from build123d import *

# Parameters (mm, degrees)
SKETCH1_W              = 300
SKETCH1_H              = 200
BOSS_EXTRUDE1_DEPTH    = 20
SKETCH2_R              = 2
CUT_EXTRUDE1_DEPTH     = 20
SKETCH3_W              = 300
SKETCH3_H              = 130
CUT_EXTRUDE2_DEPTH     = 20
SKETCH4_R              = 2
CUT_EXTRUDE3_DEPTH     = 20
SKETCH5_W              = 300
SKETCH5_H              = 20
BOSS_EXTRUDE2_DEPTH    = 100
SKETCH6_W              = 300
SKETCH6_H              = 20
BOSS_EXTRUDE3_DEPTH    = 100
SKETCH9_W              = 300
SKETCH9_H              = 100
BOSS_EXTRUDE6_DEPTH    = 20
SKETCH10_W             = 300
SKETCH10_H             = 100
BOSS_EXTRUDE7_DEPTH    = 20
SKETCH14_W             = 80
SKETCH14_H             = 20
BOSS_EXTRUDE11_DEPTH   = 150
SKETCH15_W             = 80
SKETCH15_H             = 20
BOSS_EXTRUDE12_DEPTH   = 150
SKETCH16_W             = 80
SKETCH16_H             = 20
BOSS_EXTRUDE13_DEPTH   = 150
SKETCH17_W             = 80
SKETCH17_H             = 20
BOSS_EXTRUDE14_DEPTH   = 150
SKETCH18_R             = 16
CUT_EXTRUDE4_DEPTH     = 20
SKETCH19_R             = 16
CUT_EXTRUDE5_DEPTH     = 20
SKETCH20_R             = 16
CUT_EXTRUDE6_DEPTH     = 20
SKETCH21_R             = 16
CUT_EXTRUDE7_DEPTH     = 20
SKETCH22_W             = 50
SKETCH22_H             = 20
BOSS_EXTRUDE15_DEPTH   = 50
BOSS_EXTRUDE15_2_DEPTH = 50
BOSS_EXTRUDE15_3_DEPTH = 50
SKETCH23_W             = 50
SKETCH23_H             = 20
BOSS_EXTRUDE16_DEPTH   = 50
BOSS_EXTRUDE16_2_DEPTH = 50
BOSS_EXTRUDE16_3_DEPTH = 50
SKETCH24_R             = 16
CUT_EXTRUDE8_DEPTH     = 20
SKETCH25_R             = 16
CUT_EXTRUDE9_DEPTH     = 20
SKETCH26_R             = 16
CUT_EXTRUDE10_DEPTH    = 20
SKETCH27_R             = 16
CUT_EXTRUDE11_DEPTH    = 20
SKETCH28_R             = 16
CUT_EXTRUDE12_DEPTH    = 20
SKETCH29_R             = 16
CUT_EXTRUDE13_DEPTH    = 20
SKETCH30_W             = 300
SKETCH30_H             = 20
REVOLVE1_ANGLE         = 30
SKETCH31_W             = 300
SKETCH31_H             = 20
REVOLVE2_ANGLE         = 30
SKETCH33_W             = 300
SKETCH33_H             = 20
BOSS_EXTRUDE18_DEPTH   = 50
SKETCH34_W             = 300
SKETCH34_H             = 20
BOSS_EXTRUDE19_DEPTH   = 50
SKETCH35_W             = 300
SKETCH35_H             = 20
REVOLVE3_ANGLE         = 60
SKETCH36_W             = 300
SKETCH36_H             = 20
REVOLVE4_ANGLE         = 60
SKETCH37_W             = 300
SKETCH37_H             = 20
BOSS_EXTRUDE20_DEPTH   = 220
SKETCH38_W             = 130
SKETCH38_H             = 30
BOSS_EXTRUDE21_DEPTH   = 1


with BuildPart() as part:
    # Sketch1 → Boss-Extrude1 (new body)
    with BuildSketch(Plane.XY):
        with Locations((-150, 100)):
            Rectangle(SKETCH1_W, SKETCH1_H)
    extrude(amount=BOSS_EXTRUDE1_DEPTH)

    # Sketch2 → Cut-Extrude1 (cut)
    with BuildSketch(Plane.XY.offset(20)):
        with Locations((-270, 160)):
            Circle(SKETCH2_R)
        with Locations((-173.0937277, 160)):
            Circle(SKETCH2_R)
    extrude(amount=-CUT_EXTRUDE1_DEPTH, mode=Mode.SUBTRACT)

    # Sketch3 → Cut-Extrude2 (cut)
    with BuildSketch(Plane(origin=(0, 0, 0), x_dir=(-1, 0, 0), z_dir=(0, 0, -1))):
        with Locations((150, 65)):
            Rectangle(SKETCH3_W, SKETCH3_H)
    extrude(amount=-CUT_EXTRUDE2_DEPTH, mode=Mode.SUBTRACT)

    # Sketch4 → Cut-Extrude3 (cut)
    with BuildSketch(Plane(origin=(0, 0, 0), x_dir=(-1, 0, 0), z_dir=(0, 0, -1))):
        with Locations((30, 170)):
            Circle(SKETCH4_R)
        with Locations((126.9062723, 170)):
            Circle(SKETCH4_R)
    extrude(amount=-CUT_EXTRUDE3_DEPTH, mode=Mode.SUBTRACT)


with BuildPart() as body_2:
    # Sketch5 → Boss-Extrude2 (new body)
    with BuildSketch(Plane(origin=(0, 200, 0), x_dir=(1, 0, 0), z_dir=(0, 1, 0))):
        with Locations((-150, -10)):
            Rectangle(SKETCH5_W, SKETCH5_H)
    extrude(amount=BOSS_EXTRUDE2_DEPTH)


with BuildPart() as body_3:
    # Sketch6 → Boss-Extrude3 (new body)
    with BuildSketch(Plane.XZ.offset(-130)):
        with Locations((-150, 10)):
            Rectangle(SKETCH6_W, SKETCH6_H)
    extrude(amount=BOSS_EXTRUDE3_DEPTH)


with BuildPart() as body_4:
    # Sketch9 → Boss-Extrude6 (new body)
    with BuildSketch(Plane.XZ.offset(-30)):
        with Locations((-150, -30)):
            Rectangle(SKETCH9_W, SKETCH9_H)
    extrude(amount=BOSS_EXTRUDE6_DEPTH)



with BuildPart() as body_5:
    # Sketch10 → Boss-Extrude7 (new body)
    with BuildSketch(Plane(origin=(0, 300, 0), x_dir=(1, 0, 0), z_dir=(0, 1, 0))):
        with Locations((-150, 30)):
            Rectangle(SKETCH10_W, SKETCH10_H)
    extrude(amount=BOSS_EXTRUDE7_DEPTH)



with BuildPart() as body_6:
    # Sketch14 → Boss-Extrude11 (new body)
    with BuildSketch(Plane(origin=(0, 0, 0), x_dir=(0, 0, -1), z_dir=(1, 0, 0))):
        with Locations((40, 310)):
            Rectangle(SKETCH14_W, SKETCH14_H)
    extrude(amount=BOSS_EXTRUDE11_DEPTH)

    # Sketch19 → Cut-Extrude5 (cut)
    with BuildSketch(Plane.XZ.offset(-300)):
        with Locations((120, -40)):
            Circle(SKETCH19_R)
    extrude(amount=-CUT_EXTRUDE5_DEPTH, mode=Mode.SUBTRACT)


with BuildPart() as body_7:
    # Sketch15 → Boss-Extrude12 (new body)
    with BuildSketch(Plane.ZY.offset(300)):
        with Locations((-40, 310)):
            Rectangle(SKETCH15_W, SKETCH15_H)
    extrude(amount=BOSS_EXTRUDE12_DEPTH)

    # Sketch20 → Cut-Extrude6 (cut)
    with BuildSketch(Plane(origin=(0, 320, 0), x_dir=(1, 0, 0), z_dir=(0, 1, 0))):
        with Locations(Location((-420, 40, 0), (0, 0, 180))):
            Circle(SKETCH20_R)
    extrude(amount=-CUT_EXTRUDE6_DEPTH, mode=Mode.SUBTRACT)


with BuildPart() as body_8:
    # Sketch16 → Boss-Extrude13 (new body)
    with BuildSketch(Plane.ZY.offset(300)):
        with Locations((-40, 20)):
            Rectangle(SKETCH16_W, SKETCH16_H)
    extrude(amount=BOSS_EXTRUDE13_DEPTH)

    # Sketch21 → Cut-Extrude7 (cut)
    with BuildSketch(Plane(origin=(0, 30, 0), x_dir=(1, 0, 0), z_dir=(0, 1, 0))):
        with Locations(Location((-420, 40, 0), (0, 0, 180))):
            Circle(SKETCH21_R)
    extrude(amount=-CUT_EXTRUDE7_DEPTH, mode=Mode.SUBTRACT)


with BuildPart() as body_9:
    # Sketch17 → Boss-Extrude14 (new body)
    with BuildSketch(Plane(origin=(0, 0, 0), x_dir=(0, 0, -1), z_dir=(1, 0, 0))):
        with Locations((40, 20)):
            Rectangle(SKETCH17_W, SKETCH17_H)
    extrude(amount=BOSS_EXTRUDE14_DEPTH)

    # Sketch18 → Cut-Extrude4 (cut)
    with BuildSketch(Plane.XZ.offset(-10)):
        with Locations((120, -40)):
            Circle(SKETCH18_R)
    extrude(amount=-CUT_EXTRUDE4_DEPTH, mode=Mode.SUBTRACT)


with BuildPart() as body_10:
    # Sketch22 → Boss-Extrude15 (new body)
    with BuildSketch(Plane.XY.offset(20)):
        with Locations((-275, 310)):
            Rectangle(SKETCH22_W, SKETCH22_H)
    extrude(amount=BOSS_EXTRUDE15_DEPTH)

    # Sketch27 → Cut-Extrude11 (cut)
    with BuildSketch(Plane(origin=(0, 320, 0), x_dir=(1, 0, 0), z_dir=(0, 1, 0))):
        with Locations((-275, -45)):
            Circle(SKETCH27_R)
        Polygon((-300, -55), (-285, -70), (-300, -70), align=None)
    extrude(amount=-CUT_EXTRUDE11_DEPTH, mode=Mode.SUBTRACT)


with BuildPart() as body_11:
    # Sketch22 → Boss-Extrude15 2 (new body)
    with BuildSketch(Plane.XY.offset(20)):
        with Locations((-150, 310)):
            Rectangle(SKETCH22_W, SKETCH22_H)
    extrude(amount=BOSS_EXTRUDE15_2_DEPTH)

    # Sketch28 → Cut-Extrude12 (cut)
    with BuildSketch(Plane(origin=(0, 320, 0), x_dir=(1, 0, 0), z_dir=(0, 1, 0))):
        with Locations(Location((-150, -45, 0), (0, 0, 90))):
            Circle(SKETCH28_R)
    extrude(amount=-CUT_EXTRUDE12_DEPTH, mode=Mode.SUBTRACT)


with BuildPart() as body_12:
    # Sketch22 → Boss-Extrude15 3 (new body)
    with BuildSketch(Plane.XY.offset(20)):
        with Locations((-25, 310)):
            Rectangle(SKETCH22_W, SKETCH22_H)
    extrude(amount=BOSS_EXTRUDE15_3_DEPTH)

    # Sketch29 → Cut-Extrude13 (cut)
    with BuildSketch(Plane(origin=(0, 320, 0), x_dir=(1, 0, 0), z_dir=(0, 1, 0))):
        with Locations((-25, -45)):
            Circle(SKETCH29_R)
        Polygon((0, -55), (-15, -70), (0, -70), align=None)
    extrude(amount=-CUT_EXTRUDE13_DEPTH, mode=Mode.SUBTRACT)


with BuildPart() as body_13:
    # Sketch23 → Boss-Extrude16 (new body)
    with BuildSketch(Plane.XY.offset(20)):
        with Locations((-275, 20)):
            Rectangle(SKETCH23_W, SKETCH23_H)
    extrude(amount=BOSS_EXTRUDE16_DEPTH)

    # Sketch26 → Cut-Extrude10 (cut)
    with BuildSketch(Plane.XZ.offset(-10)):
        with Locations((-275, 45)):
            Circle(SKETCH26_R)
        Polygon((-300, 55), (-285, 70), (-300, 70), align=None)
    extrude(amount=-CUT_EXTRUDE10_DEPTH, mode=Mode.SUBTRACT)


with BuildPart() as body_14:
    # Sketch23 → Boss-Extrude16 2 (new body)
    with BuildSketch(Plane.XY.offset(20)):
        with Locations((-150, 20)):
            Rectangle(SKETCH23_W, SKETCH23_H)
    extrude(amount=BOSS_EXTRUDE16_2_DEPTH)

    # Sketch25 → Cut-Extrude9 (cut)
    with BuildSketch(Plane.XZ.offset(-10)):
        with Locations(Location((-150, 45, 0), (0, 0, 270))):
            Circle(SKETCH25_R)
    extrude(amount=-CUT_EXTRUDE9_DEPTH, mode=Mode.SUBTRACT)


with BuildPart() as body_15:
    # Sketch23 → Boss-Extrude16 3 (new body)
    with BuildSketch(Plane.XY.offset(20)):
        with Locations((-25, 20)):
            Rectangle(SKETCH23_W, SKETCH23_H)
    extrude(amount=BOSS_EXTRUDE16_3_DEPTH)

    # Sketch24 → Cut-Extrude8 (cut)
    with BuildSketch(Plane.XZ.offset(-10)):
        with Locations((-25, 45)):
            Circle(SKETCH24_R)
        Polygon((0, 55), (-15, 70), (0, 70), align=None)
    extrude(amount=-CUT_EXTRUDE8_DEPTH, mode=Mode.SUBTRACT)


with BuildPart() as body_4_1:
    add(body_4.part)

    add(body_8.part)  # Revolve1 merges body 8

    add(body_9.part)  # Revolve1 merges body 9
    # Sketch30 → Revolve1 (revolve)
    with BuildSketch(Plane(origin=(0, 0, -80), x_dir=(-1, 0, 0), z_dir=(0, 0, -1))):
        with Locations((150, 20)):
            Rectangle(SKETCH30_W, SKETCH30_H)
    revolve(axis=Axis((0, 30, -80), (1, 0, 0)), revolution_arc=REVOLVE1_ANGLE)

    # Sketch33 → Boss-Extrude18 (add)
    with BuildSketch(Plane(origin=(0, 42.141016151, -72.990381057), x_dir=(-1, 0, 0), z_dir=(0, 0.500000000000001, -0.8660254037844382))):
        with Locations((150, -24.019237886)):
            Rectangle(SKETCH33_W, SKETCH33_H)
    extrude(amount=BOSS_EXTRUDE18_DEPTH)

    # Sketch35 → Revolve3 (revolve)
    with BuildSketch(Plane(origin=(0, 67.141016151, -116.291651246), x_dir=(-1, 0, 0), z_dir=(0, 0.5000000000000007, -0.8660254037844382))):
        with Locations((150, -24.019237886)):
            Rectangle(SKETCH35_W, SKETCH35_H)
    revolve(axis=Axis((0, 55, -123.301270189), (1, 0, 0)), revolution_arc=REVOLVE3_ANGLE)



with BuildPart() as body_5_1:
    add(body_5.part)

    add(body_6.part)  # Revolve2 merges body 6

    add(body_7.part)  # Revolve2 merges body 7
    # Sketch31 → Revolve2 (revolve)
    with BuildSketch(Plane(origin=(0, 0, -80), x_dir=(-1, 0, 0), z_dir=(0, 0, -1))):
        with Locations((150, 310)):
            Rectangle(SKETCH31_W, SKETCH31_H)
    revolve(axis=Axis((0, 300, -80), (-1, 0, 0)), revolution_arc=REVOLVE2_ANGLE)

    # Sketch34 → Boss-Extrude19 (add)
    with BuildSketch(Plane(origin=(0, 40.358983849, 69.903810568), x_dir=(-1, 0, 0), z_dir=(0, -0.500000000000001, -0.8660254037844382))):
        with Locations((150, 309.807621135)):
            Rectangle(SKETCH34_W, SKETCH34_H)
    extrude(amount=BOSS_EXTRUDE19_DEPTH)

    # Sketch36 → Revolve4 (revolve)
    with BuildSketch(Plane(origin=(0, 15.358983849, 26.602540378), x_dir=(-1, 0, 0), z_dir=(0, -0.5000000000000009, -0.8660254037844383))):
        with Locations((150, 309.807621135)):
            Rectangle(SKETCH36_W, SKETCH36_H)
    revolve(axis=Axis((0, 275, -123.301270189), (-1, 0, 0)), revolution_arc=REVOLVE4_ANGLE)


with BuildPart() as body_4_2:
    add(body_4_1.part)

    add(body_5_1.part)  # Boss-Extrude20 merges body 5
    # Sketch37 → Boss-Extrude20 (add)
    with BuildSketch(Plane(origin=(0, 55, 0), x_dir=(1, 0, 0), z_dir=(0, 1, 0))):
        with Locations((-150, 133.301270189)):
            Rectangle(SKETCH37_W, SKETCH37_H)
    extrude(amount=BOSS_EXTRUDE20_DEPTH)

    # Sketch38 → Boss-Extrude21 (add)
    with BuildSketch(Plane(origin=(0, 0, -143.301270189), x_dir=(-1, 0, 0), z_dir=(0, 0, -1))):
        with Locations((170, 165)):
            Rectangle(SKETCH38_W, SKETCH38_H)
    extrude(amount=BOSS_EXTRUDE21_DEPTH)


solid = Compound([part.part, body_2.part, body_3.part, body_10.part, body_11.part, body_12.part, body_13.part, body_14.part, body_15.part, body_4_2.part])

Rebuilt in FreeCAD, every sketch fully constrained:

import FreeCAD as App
import Part
import Sketcher

V = App.Vector


def add_polygon(sketch, points):
    """Adds a closed chain of lines whose ends are joined by coincident constraints."""
    first, n = sketch.GeometryCount, len(points)
    for a, b in zip(points, points[1:] + points[:1]):
        sketch.addGeometry(Part.LineSegment(App.Vector(*a, 0), App.Vector(*b, 0)), False)
    for i in range(n):
        sketch.addConstraint(Sketcher.Constraint("Coincident", first + i, 2, first + (i + 1) % n, 1))

doc = App.newDocument("Part")
body = doc.addObject("PartDesign::Body", "Body")

sketch1 = body.newObject("Sketcher::SketchObject", "Sketch")
sketch1.AttachmentSupport = (doc.getObject("XY_Plane"), [""])
sketch1.MapMode = "FlatFace"
add_polygon(sketch1, [(-300, 200), (-300, 0), (0, 0), (0, 200)])
sketch1.addConstraint(Sketcher.Constraint("Vertical", 0))
sketch1.addConstraint(Sketcher.Constraint("Horizontal", 1))
sketch1.addConstraint(Sketcher.Constraint("Vertical", 2))
sketch1.addConstraint(Sketcher.Constraint("Horizontal", 3))
sketch1.addConstraint(Sketcher.Constraint("Coincident", 1, 2, -1, 1))
sketch1.addConstraint(Sketcher.Constraint("DistanceX", 1, 1, 1, 2, 300.0))
sketch1.addConstraint(Sketcher.Constraint("DistanceY", 0, 2, 0, 1, 200.0))
pad1 = body.newObject("PartDesign::Pad", "Pad")
pad1.Profile = sketch1
pad1.Length = 20

sketch2 = body.newObject("Sketcher::SketchObject", "Sketch001")
sketch2.AttachmentSupport = (doc.getObject("XY_Plane"), [""])
sketch2.MapMode = "FlatFace"
sketch2.AttachmentOffset = App.Placement(V(0, 0, 20), App.Rotation())
sketch2.addGeometry(Part.Circle(V(-270, 160, 0), V(0, 0, 1), 2), False)
sketch2.addGeometry(Part.Circle(V(-173.1, 160, 0), V(0, 0, 1), 2), False)
sketch2.addConstraint(Sketcher.Constraint("Equal", 0, 1))
sketch2.addConstraint(Sketcher.Constraint("Horizontal", 0, 3, 1, 3))
sketch2.addConstraint(Sketcher.Constraint("Diameter", 0, 4.0))
sketch2.addConstraint(Sketcher.Constraint("DistanceX", 0, 3, -1, 1, 270.0))
sketch2.addConstraint(Sketcher.Constraint("DistanceY", -1, 1, 0, 3, 160.0))
sketch2.addConstraint(Sketcher.Constraint("DistanceX", 1, 3, -1, 1, 173.093728))
pocket1 = body.newObject("PartDesign::Pocket", "Pocket")
pocket1.Profile = sketch2
pocket1.Length = 20

sketch3 = body.newObject("Sketcher::SketchObject", "Sketch002")
sketch3.AttachmentSupport = (doc.getObject("XY_Plane"), [""])
sketch3.MapMode = "FlatFace"
add_polygon(sketch3, [(0, 130), (0, 0), (-300, 0), (-300, 130)])
sketch3.addConstraint(Sketcher.Constraint("Vertical", 0))
sketch3.addConstraint(Sketcher.Constraint("Horizontal", 1))
sketch3.addConstraint(Sketcher.Constraint("Vertical", 2))
sketch3.addConstraint(Sketcher.Constraint("Horizontal", 3))
sketch3.addConstraint(Sketcher.Constraint("Coincident", 0, 2, -1, 1))
sketch3.addConstraint(Sketcher.Constraint("DistanceX", 1, 2, 1, 1, 300.0))
sketch3.addConstraint(Sketcher.Constraint("DistanceY", 0, 2, 0, 1, 130.0))
pocket2 = body.newObject("PartDesign::Pocket", "Pocket001")
pocket2.Profile = sketch3
pocket2.Length = 20
pocket2.Reversed = True

sketch4 = body.newObject("Sketcher::SketchObject", "Sketch003")
sketch4.AttachmentSupport = (doc.getObject("XY_Plane"), [""])
sketch4.MapMode = "FlatFace"
sketch4.addGeometry(Part.Circle(V(-30, 170, 0), V(0, 0, 1), 2), False)
sketch4.addGeometry(Part.Circle(V(-126.9, 170, 0), V(0, 0, 1), 2), False)
sketch4.addConstraint(Sketcher.Constraint("Equal", 0, 1))
sketch4.addConstraint(Sketcher.Constraint("Horizontal", 0, 3, 1, 3))
sketch4.addConstraint(Sketcher.Constraint("Diameter", 0, 4.0))
sketch4.addConstraint(Sketcher.Constraint("DistanceX", 0, 3, -1, 1, 30.0))
sketch4.addConstraint(Sketcher.Constraint("DistanceY", -1, 1, 0, 3, 170.0))
sketch4.addConstraint(Sketcher.Constraint("DistanceX", 1, 3, -1, 1, 126.906272))
pocket3 = body.newObject("PartDesign::Pocket", "Pocket002")
pocket3.Profile = sketch4
pocket3.Length = 20
pocket3.Reversed = True
body2 = doc.addObject("PartDesign::Body", "Body001")

sketch5 = body2.newObject("Sketcher::SketchObject", "Sketch004")
sketch5.AttachmentSupport = (doc.getObject("XZ_Plane001"), [""])
sketch5.MapMode = "FlatFace"
sketch5.AttachmentOffset = App.Placement(V(0, 0, -200), App.Rotation())
add_polygon(sketch5, [(-300, 0), (-300, 20), (0, 20), (0, 0)])
sketch5.addConstraint(Sketcher.Constraint("Vertical", 0))
sketch5.addConstraint(Sketcher.Constraint("Horizontal", 1))
sketch5.addConstraint(Sketcher.Constraint("Vertical", 2))
sketch5.addConstraint(Sketcher.Constraint("Horizontal", 3))
sketch5.addConstraint(Sketcher.Constraint("Coincident", 2, 2, -1, 1))
sketch5.addConstraint(Sketcher.Constraint("DistanceX", 1, 1, 1, 2, 300.0))
sketch5.addConstraint(Sketcher.Constraint("DistanceY", 0, 1, 0, 2, 20.0))
pad2 = body2.newObject("PartDesign::Pad", "Pad001")
pad2.Profile = sketch5
pad2.Length = 100
pad2.Reversed = True
body3 = doc.addObject("PartDesign::Body", "Body002")

sketch6 = body3.newObject("Sketcher::SketchObject", "Sketch005")
sketch6.AttachmentSupport = (doc.getObject("XZ_Plane002"), [""])
sketch6.MapMode = "FlatFace"
sketch6.AttachmentOffset = App.Placement(V(0, 0, -130), App.Rotation())
add_polygon(sketch6, [(-300, 20), (-300, 0), (0, 0), (0, 20)])
sketch6.addConstraint(Sketcher.Constraint("Vertical", 0))
sketch6.addConstraint(Sketcher.Constraint("Horizontal", 1))
sketch6.addConstraint(Sketcher.Constraint("Vertical", 2))
sketch6.addConstraint(Sketcher.Constraint("Horizontal", 3))
sketch6.addConstraint(Sketcher.Constraint("Coincident", 1, 2, -1, 1))
sketch6.addConstraint(Sketcher.Constraint("DistanceX", 1, 1, 1, 2, 300.0))
sketch6.addConstraint(Sketcher.Constraint("DistanceY", 0, 2, 0, 1, 20.0))
pad3 = body3.newObject("PartDesign::Pad", "Pad002")
pad3.Profile = sketch6
pad3.Length = 100
body4 = doc.addObject("PartDesign::Body", "Body003")

sketch7 = body4.newObject("Sketcher::SketchObject", "Sketch006")
sketch7.AttachmentSupport = (doc.getObject("XZ_Plane003"), [""])
sketch7.MapMode = "FlatFace"
sketch7.AttachmentOffset = App.Placement(V(0, 0, -30), App.Rotation())
add_polygon(sketch7, [(-300, 20), (-300, -80), (0, -80), (0, 20)])
sketch7.addConstraint(Sketcher.Constraint("Vertical", 0))
sketch7.addConstraint(Sketcher.Constraint("Horizontal", 1))
sketch7.addConstraint(Sketcher.Constraint("Vertical", 2))
sketch7.addConstraint(Sketcher.Constraint("Horizontal", 3))
sketch7.addConstraint(Sketcher.Constraint("PointOnObject", 1, 2, -2))
sketch7.addConstraint(Sketcher.Constraint("DistanceX", 1, 1, 1, 2, 300.0))
sketch7.addConstraint(Sketcher.Constraint("DistanceY", 0, 2, 0, 1, 100.0))
sketch7.addConstraint(Sketcher.Constraint("DistanceY", 0, 2, -1, 1, 80.0))
pad4 = body4.newObject("PartDesign::Pad", "Pad003")
pad4.Profile = sketch7
pad4.Length = 20
body5 = doc.addObject("PartDesign::Body", "Body004")

sketch8 = body5.newObject("Sketcher::SketchObject", "Sketch007")
sketch8.AttachmentSupport = (doc.getObject("XZ_Plane004"), [""])
sketch8.MapMode = "FlatFace"
sketch8.AttachmentOffset = App.Placement(V(0, 0, -300), App.Rotation())
add_polygon(sketch8, [(-300, -80), (-300, 20), (0, 20), (0, -80)])
sketch8.addConstraint(Sketcher.Constraint("Vertical", 0))
sketch8.addConstraint(Sketcher.Constraint("Horizontal", 1))
sketch8.addConstraint(Sketcher.Constraint("Vertical", 2))
sketch8.addConstraint(Sketcher.Constraint("Horizontal", 3))
sketch8.addConstraint(Sketcher.Constraint("PointOnObject", 1, 2, -2))
sketch8.addConstraint(Sketcher.Constraint("DistanceX", 1, 1, 1, 2, 300.0))
sketch8.addConstraint(Sketcher.Constraint("DistanceY", 0, 1, 0, 2, 100.0))
sketch8.addConstraint(Sketcher.Constraint("DistanceY", -1, 1, 0, 2, 20.0))
pad5 = body5.newObject("PartDesign::Pad", "Pad004")
pad5.Profile = sketch8
pad5.Length = 20
pad5.Reversed = True
body6 = doc.addObject("PartDesign::Body", "Body005")

sketch9 = body6.newObject("Sketcher::SketchObject", "Sketch008")
sketch9.AttachmentSupport = (doc.getObject("YZ_Plane005"), [""])
sketch9.MapMode = "FlatFace"
add_polygon(sketch9, [(320, 0), (300, 0), (300, -80), (320, -80)])
sketch9.addConstraint(Sketcher.Constraint("Horizontal", 0))
sketch9.addConstraint(Sketcher.Constraint("Vertical", 1))
sketch9.addConstraint(Sketcher.Constraint("Horizontal", 2))
sketch9.addConstraint(Sketcher.Constraint("Vertical", 3))
sketch9.addConstraint(Sketcher.Constraint("PointOnObject", 0, 2, -1))
sketch9.addConstraint(Sketcher.Constraint("DistanceX", 0, 2, 0, 1, 20.0))
sketch9.addConstraint(Sketcher.Constraint("DistanceY", 1, 2, 1, 1, 80.0))
sketch9.addConstraint(Sketcher.Constraint("DistanceX", -1, 1, 0, 2, 300.0))
pad6 = body6.newObject("PartDesign::Pad", "Pad005")
pad6.Profile = sketch9
pad6.Length = 150

sketch10 = body6.newObject("Sketcher::SketchObject", "Sketch009")
sketch10.AttachmentSupport = (doc.getObject("XZ_Plane005"), [""])
sketch10.MapMode = "FlatFace"
sketch10.AttachmentOffset = App.Placement(V(0, 0, -300), App.Rotation())
sketch10.addGeometry(Part.Circle(V(120, -40, 0), V(0, 0, 1), 16), False)
sketch10.addConstraint(Sketcher.Constraint("Diameter", 0, 32.0))
sketch10.addConstraint(Sketcher.Constraint("DistanceX", -1, 1, 0, 3, 120.0))
sketch10.addConstraint(Sketcher.Constraint("DistanceY", 0, 3, -1, 1, 40.0))
pocket4 = body6.newObject("PartDesign::Pocket", "Pocket003")
pocket4.Profile = sketch10
pocket4.Length = 20
body7 = doc.addObject("PartDesign::Body", "Body006")

sketch11 = body7.newObject("Sketcher::SketchObject", "Sketch010")
sketch11.AttachmentSupport = (doc.getObject("YZ_Plane006"), [""])
sketch11.MapMode = "FlatFace"
sketch11.AttachmentOffset = App.Placement(V(0, 0, -300), App.Rotation())
add_polygon(sketch11, [(320, -80), (300, -80), (300, 0), (320, 0)])
sketch11.addConstraint(Sketcher.Constraint("Horizontal", 0))
sketch11.addConstraint(Sketcher.Constraint("Vertical", 1))
sketch11.addConstraint(Sketcher.Constraint("Horizontal", 2))
sketch11.addConstraint(Sketcher.Constraint("Vertical", 3))
sketch11.addConstraint(Sketcher.Constraint("PointOnObject", 1, 2, -1))
sketch11.addConstraint(Sketcher.Constraint("DistanceX", 0, 2, 0, 1, 20.0))
sketch11.addConstraint(Sketcher.Constraint("DistanceY", 1, 1, 1, 2, 80.0))
sketch11.addConstraint(Sketcher.Constraint("DistanceX", -1, 1, 0, 2, 300.0))
pad7 = body7.newObject("PartDesign::Pad", "Pad006")
pad7.Profile = sketch11
pad7.Length = 150
pad7.Reversed = True

sketch12 = body7.newObject("Sketcher::SketchObject", "Sketch011")
sketch12.AttachmentSupport = (doc.getObject("XZ_Plane006"), [""])
sketch12.MapMode = "FlatFace"
sketch12.AttachmentOffset = App.Placement(V(0, 0, -320), App.Rotation())
sketch12.addGeometry(Part.Circle(V(-420, -40, 0), V(0, 0, 1), 16), False)
sketch12.addConstraint(Sketcher.Constraint("Diameter", 0, 32.0))
sketch12.addConstraint(Sketcher.Constraint("DistanceX", 0, 3, -1, 1, 420.0))
sketch12.addConstraint(Sketcher.Constraint("DistanceY", 0, 3, -1, 1, 40.0))
pocket5 = body7.newObject("PartDesign::Pocket", "Pocket004")
pocket5.Profile = sketch12
pocket5.Length = 20
pocket5.Reversed = True
body8 = doc.addObject("PartDesign::Body", "Body007")

sketch13 = body8.newObject("Sketcher::SketchObject", "Sketch012")
sketch13.AttachmentSupport = (doc.getObject("YZ_Plane007"), [""])
sketch13.MapMode = "FlatFace"
sketch13.AttachmentOffset = App.Placement(V(0, 0, -300), App.Rotation())
add_polygon(sketch13, [(30, -80), (10, -80), (10, 0), (30, 0)])
sketch13.addConstraint(Sketcher.Constraint("Horizontal", 0))
sketch13.addConstraint(Sketcher.Constraint("Vertical", 1))
sketch13.addConstraint(Sketcher.Constraint("Horizontal", 2))
sketch13.addConstraint(Sketcher.Constraint("Vertical", 3))
sketch13.addConstraint(Sketcher.Constraint("PointOnObject", 1, 2, -1))
sketch13.addConstraint(Sketcher.Constraint("DistanceX", 0, 2, 0, 1, 20.0))
sketch13.addConstraint(Sketcher.Constraint("DistanceY", 1, 1, 1, 2, 80.0))
sketch13.addConstraint(Sketcher.Constraint("DistanceX", -1, 1, 0, 2, 10.0))
pad8 = body8.newObject("PartDesign::Pad", "Pad007")
pad8.Profile = sketch13
pad8.Length = 150
pad8.Reversed = True

sketch14 = body8.newObject("Sketcher::SketchObject", "Sketch013")
sketch14.AttachmentSupport = (doc.getObject("XZ_Plane007"), [""])
sketch14.MapMode = "FlatFace"
sketch14.AttachmentOffset = App.Placement(V(0, 0, -30), App.Rotation())
sketch14.addGeometry(Part.Circle(V(-420, -40, 0), V(0, 0, 1), 16), False)
sketch14.addConstraint(Sketcher.Constraint("Diameter", 0, 32.0))
sketch14.addConstraint(Sketcher.Constraint("DistanceX", 0, 3, -1, 1, 420.0))
sketch14.addConstraint(Sketcher.Constraint("DistanceY", 0, 3, -1, 1, 40.0))
pocket6 = body8.newObject("PartDesign::Pocket", "Pocket005")
pocket6.Profile = sketch14
pocket6.Length = 20
pocket6.Reversed = True
body9 = doc.addObject("PartDesign::Body", "Body008")

sketch15 = body9.newObject("Sketcher::SketchObject", "Sketch014")
sketch15.AttachmentSupport = (doc.getObject("YZ_Plane008"), [""])
sketch15.MapMode = "FlatFace"
add_polygon(sketch15, [(30, 0), (10, 0), (10, -80), (30, -80)])
sketch15.addConstraint(Sketcher.Constraint("Horizontal", 0))
sketch15.addConstraint(Sketcher.Constraint("Vertical", 1))
sketch15.addConstraint(Sketcher.Constraint("Horizontal", 2))
sketch15.addConstraint(Sketcher.Constraint("Vertical", 3))
sketch15.addConstraint(Sketcher.Constraint("PointOnObject", 0, 2, -1))
sketch15.addConstraint(Sketcher.Constraint("DistanceX", 0, 2, 0, 1, 20.0))
sketch15.addConstraint(Sketcher.Constraint("DistanceY", 1, 2, 1, 1, 80.0))
sketch15.addConstraint(Sketcher.Constraint("DistanceX", -1, 1, 0, 2, 10.0))
pad9 = body9.newObject("PartDesign::Pad", "Pad008")
pad9.Profile = sketch15
pad9.Length = 150

sketch16 = body9.newObject("Sketcher::SketchObject", "Sketch015")
sketch16.AttachmentSupport = (doc.getObject("XZ_Plane008"), [""])
sketch16.MapMode = "FlatFace"
sketch16.AttachmentOffset = App.Placement(V(0, 0, -10), App.Rotation())
sketch16.addGeometry(Part.Circle(V(120, -40, 0), V(0, 0, 1), 16), False)
sketch16.addConstraint(Sketcher.Constraint("Diameter", 0, 32.0))
sketch16.addConstraint(Sketcher.Constraint("DistanceX", -1, 1, 0, 3, 120.0))
sketch16.addConstraint(Sketcher.Constraint("DistanceY", 0, 3, -1, 1, 40.0))
pocket7 = body9.newObject("PartDesign::Pocket", "Pocket006")
pocket7.Profile = sketch16
pocket7.Length = 20
body10 = doc.addObject("PartDesign::Body", "Body009")

sketch17 = body10.newObject("Sketcher::SketchObject", "Sketch016")
sketch17.AttachmentSupport = (doc.getObject("XY_Plane009"), [""])
sketch17.MapMode = "FlatFace"
sketch17.AttachmentOffset = App.Placement(V(0, 0, 20), App.Rotation())
add_polygon(sketch17, [(-300, 320), (-300, 300), (-250, 300), (-250, 320)])
sketch17.addConstraint(Sketcher.Constraint("Vertical", 0))
sketch17.addConstraint(Sketcher.Constraint("Horizontal", 1))
sketch17.addConstraint(Sketcher.Constraint("Vertical", 2))
sketch17.addConstraint(Sketcher.Constraint("Horizontal", 3))
sketch17.addConstraint(Sketcher.Constraint("DistanceX", 1, 1, 1, 2, 50.0))
sketch17.addConstraint(Sketcher.Constraint("DistanceY", 0, 2, 0, 1, 20.0))
sketch17.addConstraint(Sketcher.Constraint("DistanceX", 0, 2, -1, 1, 300.0))
sketch17.addConstraint(Sketcher.Constraint("DistanceY", -1, 1, 0, 2, 300.0))
pad10 = body10.newObject("PartDesign::Pad", "Pad009")
pad10.Profile = sketch17
pad10.Length = 50

sketch18 = body10.newObject("Sketcher::SketchObject", "Sketch017")
sketch18.AttachmentSupport = (doc.getObject("XZ_Plane009"), [""])
sketch18.MapMode = "FlatFace"
sketch18.AttachmentOffset = App.Placement(V(0, 0, -320), App.Rotation())
sketch18.addGeometry(Part.Circle(V(-275, 45, 0), V(0, 0, 1), 16), False)
add_polygon(sketch18, [(-285, 70), (-300, 55), (-300, 70)])
sketch18.addConstraint(Sketcher.Constraint("Vertical", 2))
sketch18.addConstraint(Sketcher.Constraint("Horizontal", 3))
sketch18.addConstraint(Sketcher.Constraint("Equal", 3, 2))
sketch18.addConstraint(Sketcher.Constraint("Diameter", 0, 32.0))
sketch18.addConstraint(Sketcher.Constraint("DistanceX", 3, 1, 3, 2, 15.0))
sketch18.addConstraint(Sketcher.Constraint("DistanceX", 0, 3, -1, 1, 275.0))
sketch18.addConstraint(Sketcher.Constraint("DistanceY", -1, 1, 0, 3, 45.0))
sketch18.addConstraint(Sketcher.Constraint("DistanceX", 1, 2, -1, 1, 300.0))
sketch18.addConstraint(Sketcher.Constraint("DistanceY", -1, 1, 1, 2, 55.0))
pocket8 = body10.newObject("PartDesign::Pocket", "Pocket007")
pocket8.Profile = sketch18
pocket8.Length = 20
pocket8.Reversed = True
body11 = doc.addObject("PartDesign::Body", "Body010")

sketch19 = body11.newObject("Sketcher::SketchObject", "Sketch018")
sketch19.AttachmentSupport = (doc.getObject("XY_Plane010"), [""])
sketch19.MapMode = "FlatFace"
sketch19.AttachmentOffset = App.Placement(V(0, 0, 20), App.Rotation())
add_polygon(sketch19, [(-175, 320), (-175, 300), (-125, 300), (-125, 320)])
sketch19.addConstraint(Sketcher.Constraint("Vertical", 0))
sketch19.addConstraint(Sketcher.Constraint("Horizontal", 1))
sketch19.addConstraint(Sketcher.Constraint("Vertical", 2))
sketch19.addConstraint(Sketcher.Constraint("Horizontal", 3))
sketch19.addConstraint(Sketcher.Constraint("DistanceX", 1, 1, 1, 2, 50.0))
sketch19.addConstraint(Sketcher.Constraint("DistanceY", 0, 2, 0, 1, 20.0))
sketch19.addConstraint(Sketcher.Constraint("DistanceX", 0, 2, -1, 1, 175.0))
sketch19.addConstraint(Sketcher.Constraint("DistanceY", -1, 1, 0, 2, 300.0))
pad11 = body11.newObject("PartDesign::Pad", "Pad010")
pad11.Profile = sketch19
pad11.Length = 50

sketch20 = body11.newObject("Sketcher::SketchObject", "Sketch019")
sketch20.AttachmentSupport = (doc.getObject("XZ_Plane010"), [""])
sketch20.MapMode = "FlatFace"
sketch20.AttachmentOffset = App.Placement(V(0, 0, -320), App.Rotation())
sketch20.addGeometry(Part.Circle(V(-150, 45, 0), V(0, 0, 1), 16), False)
sketch20.addConstraint(Sketcher.Constraint("Diameter", 0, 32.0))
sketch20.addConstraint(Sketcher.Constraint("DistanceX", 0, 3, -1, 1, 150.0))
sketch20.addConstraint(Sketcher.Constraint("DistanceY", -1, 1, 0, 3, 45.0))
pocket9 = body11.newObject("PartDesign::Pocket", "Pocket008")
pocket9.Profile = sketch20
pocket9.Length = 20
pocket9.Reversed = True
body12 = doc.addObject("PartDesign::Body", "Body011")

sketch21 = body12.newObject("Sketcher::SketchObject", "Sketch020")
sketch21.AttachmentSupport = (doc.getObject("XY_Plane011"), [""])
sketch21.MapMode = "FlatFace"
sketch21.AttachmentOffset = App.Placement(V(0, 0, 20), App.Rotation())
add_polygon(sketch21, [(-50, 320), (-50, 300), (0, 300), (0, 320)])
sketch21.addConstraint(Sketcher.Constraint("Vertical", 0))
sketch21.addConstraint(Sketcher.Constraint("Horizontal", 1))
sketch21.addConstraint(Sketcher.Constraint("Vertical", 2))
sketch21.addConstraint(Sketcher.Constraint("Horizontal", 3))
sketch21.addConstraint(Sketcher.Constraint("PointOnObject", 1, 2, -2))
sketch21.addConstraint(Sketcher.Constraint("DistanceX", 1, 1, 1, 2, 50.0))
sketch21.addConstraint(Sketcher.Constraint("DistanceY", 0, 2, 0, 1, 20.0))
sketch21.addConstraint(Sketcher.Constraint("DistanceY", -1, 1, 0, 2, 300.0))
pad12 = body12.newObject("PartDesign::Pad", "Pad011")
pad12.Profile = sketch21
pad12.Length = 50

sketch22 = body12.newObject("Sketcher::SketchObject", "Sketch021")
sketch22.AttachmentSupport = (doc.getObject("XZ_Plane011"), [""])
sketch22.MapMode = "FlatFace"
sketch22.AttachmentOffset = App.Placement(V(0, 0, -320), App.Rotation())
sketch22.addGeometry(Part.Circle(V(-25, 45, 0), V(0, 0, 1), 16), False)
add_polygon(sketch22, [(0, 55), (-15, 70), (0, 70)])
sketch22.addConstraint(Sketcher.Constraint("Horizontal", 2))
sketch22.addConstraint(Sketcher.Constraint("Vertical", 3))
sketch22.addConstraint(Sketcher.Constraint("PointOnObject", 2, 2, -2))
sketch22.addConstraint(Sketcher.Constraint("Equal", 2, 3))
sketch22.addConstraint(Sketcher.Constraint("Diameter", 0, 32.0))
sketch22.addConstraint(Sketcher.Constraint("DistanceX", 2, 1, 2, 2, 15.0))
sketch22.addConstraint(Sketcher.Constraint("DistanceX", 0, 3, -1, 1, 25.0))
sketch22.addConstraint(Sketcher.Constraint("DistanceY", -1, 1, 0, 3, 45.0))
sketch22.addConstraint(Sketcher.Constraint("DistanceY", -1, 1, 1, 2, 70.0))
pocket10 = body12.newObject("PartDesign::Pocket", "Pocket009")
pocket10.Profile = sketch22
pocket10.Length = 20
pocket10.Reversed = True
body13 = doc.addObject("PartDesign::Body", "Body012")

sketch23 = body13.newObject("Sketcher::SketchObject", "Sketch022")
sketch23.AttachmentSupport = (doc.getObject("XY_Plane012"), [""])
sketch23.MapMode = "FlatFace"
sketch23.AttachmentOffset = App.Placement(V(0, 0, 20), App.Rotation())
add_polygon(sketch23, [(-300, 30), (-300, 10), (-250, 10), (-250, 30)])
sketch23.addConstraint(Sketcher.Constraint("Vertical", 0))
sketch23.addConstraint(Sketcher.Constraint("Horizontal", 1))
sketch23.addConstraint(Sketcher.Constraint("Vertical", 2))
sketch23.addConstraint(Sketcher.Constraint("Horizontal", 3))
sketch23.addConstraint(Sketcher.Constraint("DistanceX", 1, 1, 1, 2, 50.0))
sketch23.addConstraint(Sketcher.Constraint("DistanceY", 0, 2, 0, 1, 20.0))
sketch23.addConstraint(Sketcher.Constraint("DistanceX", 0, 2, -1, 1, 300.0))
sketch23.addConstraint(Sketcher.Constraint("DistanceY", -1, 1, 0, 2, 10.0))
pad13 = body13.newObject("PartDesign::Pad", "Pad012")
pad13.Profile = sketch23
pad13.Length = 50

sketch24 = body13.newObject("Sketcher::SketchObject", "Sketch023")
sketch24.AttachmentSupport = (doc.getObject("XZ_Plane012"), [""])
sketch24.MapMode = "FlatFace"
sketch24.AttachmentOffset = App.Placement(V(0, 0, -10), App.Rotation())
sketch24.addGeometry(Part.Circle(V(-275, 45, 0), V(0, 0, 1), 16), False)
add_polygon(sketch24, [(-300, 55), (-285, 70), (-300, 70)])
sketch24.addConstraint(Sketcher.Constraint("Horizontal", 2))
sketch24.addConstraint(Sketcher.Constraint("Vertical", 3))
sketch24.addConstraint(Sketcher.Constraint("Equal", 2, 3))
sketch24.addConstraint(Sketcher.Constraint("Diameter", 0, 32.0))
sketch24.addConstraint(Sketcher.Constraint("DistanceX", 2, 2, 2, 1, 15.0))
sketch24.addConstraint(Sketcher.Constraint("DistanceX", 0, 3, -1, 1, 275.0))
sketch24.addConstraint(Sketcher.Constraint("DistanceY", -1, 1, 0, 3, 45.0))
sketch24.addConstraint(Sketcher.Constraint("DistanceX", 1, 2, -1, 1, 285.0))
sketch24.addConstraint(Sketcher.Constraint("DistanceY", -1, 1, 1, 2, 70.0))
pocket11 = body13.newObject("PartDesign::Pocket", "Pocket010")
pocket11.Profile = sketch24
pocket11.Length = 20
body14 = doc.addObject("PartDesign::Body", "Body013")

sketch25 = body14.newObject("Sketcher::SketchObject", "Sketch024")
sketch25.AttachmentSupport = (doc.getObject("XY_Plane013"), [""])
sketch25.MapMode = "FlatFace"
sketch25.AttachmentOffset = App.Placement(V(0, 0, 20), App.Rotation())
add_polygon(sketch25, [(-175, 30), (-175, 10), (-125, 10), (-125, 30)])
sketch25.addConstraint(Sketcher.Constraint("Vertical", 0))
sketch25.addConstraint(Sketcher.Constraint("Horizontal", 1))
sketch25.addConstraint(Sketcher.Constraint("Vertical", 2))
sketch25.addConstraint(Sketcher.Constraint("Horizontal", 3))
sketch25.addConstraint(Sketcher.Constraint("DistanceX", 1, 1, 1, 2, 50.0))
sketch25.addConstraint(Sketcher.Constraint("DistanceY", 0, 2, 0, 1, 20.0))
sketch25.addConstraint(Sketcher.Constraint("DistanceX", 0, 2, -1, 1, 175.0))
sketch25.addConstraint(Sketcher.Constraint("DistanceY", -1, 1, 0, 2, 10.0))
pad14 = body14.newObject("PartDesign::Pad", "Pad013")
pad14.Profile = sketch25
pad14.Length = 50

sketch26 = body14.newObject("Sketcher::SketchObject", "Sketch025")
sketch26.AttachmentSupport = (doc.getObject("XZ_Plane013"), [""])
sketch26.MapMode = "FlatFace"
sketch26.AttachmentOffset = App.Placement(V(0, 0, -10), App.Rotation())
sketch26.addGeometry(Part.Circle(V(-150, 45, 0), V(0, 0, 1), 16), False)
sketch26.addConstraint(Sketcher.Constraint("Diameter", 0, 32.0))
sketch26.addConstraint(Sketcher.Constraint("DistanceX", 0, 3, -1, 1, 150.0))
sketch26.addConstraint(Sketcher.Constraint("DistanceY", -1, 1, 0, 3, 45.0))
pocket12 = body14.newObject("PartDesign::Pocket", "Pocket011")
pocket12.Profile = sketch26
pocket12.Length = 20
body15 = doc.addObject("PartDesign::Body", "Body014")

sketch27 = body15.newObject("Sketcher::SketchObject", "Sketch026")
sketch27.AttachmentSupport = (doc.getObject("XY_Plane014"), [""])
sketch27.MapMode = "FlatFace"
sketch27.AttachmentOffset = App.Placement(V(0, 0, 20), App.Rotation())
add_polygon(sketch27, [(-50, 30), (-50, 10), (0, 10), (0, 30)])
sketch27.addConstraint(Sketcher.Constraint("Vertical", 0))
sketch27.addConstraint(Sketcher.Constraint("Horizontal", 1))
sketch27.addConstraint(Sketcher.Constraint("Vertical", 2))
sketch27.addConstraint(Sketcher.Constraint("Horizontal", 3))
sketch27.addConstraint(Sketcher.Constraint("PointOnObject", 1, 2, -2))
sketch27.addConstraint(Sketcher.Constraint("DistanceX", 1, 1, 1, 2, 50.0))
sketch27.addConstraint(Sketcher.Constraint("DistanceY", 0, 2, 0, 1, 20.0))
sketch27.addConstraint(Sketcher.Constraint("DistanceY", -1, 1, 0, 2, 10.0))
pad15 = body15.newObject("PartDesign::Pad", "Pad014")
pad15.Profile = sketch27
pad15.Length = 50

sketch28 = body15.newObject("Sketcher::SketchObject", "Sketch027")
sketch28.AttachmentSupport = (doc.getObject("XZ_Plane014"), [""])
sketch28.MapMode = "FlatFace"
sketch28.AttachmentOffset = App.Placement(V(0, 0, -10), App.Rotation())
sketch28.addGeometry(Part.Circle(V(-25, 45, 0), V(0, 0, 1), 16), False)
add_polygon(sketch28, [(-15, 70), (0, 55), (0, 70)])
sketch28.addConstraint(Sketcher.Constraint("Vertical", 2))
sketch28.addConstraint(Sketcher.Constraint("Horizontal", 3))
sketch28.addConstraint(Sketcher.Constraint("PointOnObject", 1, 2, -2))
sketch28.addConstraint(Sketcher.Constraint("Equal", 3, 2))
sketch28.addConstraint(Sketcher.Constraint("Diameter", 0, 32.0))
sketch28.addConstraint(Sketcher.Constraint("DistanceX", 3, 2, 3, 1, 15.0))
sketch28.addConstraint(Sketcher.Constraint("DistanceX", 0, 3, -1, 1, 25.0))
sketch28.addConstraint(Sketcher.Constraint("DistanceY", -1, 1, 0, 3, 45.0))
sketch28.addConstraint(Sketcher.Constraint("DistanceY", -1, 1, 1, 2, 55.0))
pocket13 = body15.newObject("PartDesign::Pocket", "Pocket012")
pocket13.Profile = sketch28
pocket13.Length = 20
doc.recompute()

boolean = body4.newObject("PartDesign::Boolean", "Boolean")
boolean.Type = "Fuse"
boolean.addObjects([body8])
doc.recompute()

boolean2 = body4.newObject("PartDesign::Boolean", "Boolean001")
boolean2.Type = "Fuse"
boolean2.addObjects([body9])

sketch29 = body4.newObject("Sketcher::SketchObject", "Sketch028")
sketch29.AttachmentSupport = (doc.getObject("XY_Plane003"), [""])
sketch29.MapMode = "FlatFace"
sketch29.AttachmentOffset = App.Placement(V(0, 0, -80), App.Rotation())
add_polygon(sketch29, [(0, 30), (0, 10), (-300, 10), (-300, 30)])
sketch29.addGeometry(Part.LineSegment(V(-300, 30, 0), V(0, 30, 0)), True)
sketch29.addConstraint(Sketcher.Constraint("Vertical", 0))
sketch29.addConstraint(Sketcher.Constraint("Horizontal", 1))
sketch29.addConstraint(Sketcher.Constraint("Vertical", 2))
sketch29.addConstraint(Sketcher.Constraint("Horizontal", 3))
sketch29.addConstraint(Sketcher.Constraint("Horizontal", 4))
sketch29.addConstraint(Sketcher.Constraint("Coincident", 4, 1, 2, 2))
sketch29.addConstraint(Sketcher.Constraint("PointOnObject", 0, 2, -2))
sketch29.addConstraint(Sketcher.Constraint("PointOnObject", 4, 2, -2))
sketch29.addConstraint(Sketcher.Constraint("DistanceX", 1, 2, 1, 1, 300.0))
sketch29.addConstraint(Sketcher.Constraint("DistanceY", 0, 2, 0, 1, 20.0))
sketch29.addConstraint(Sketcher.Constraint("DistanceY", -1, 1, 0, 2, 10.0))
revolution = body4.newObject("PartDesign::Revolution", "Revolution")
revolution.Profile = sketch29
revolution.ReferenceAxis = (sketch29, ["Axis0"])
revolution.Angle = 30

sketch30 = body4.newObject("Sketcher::SketchObject", "Sketch029")
sketch30.Placement = App.Placement(V(0, 42.141016, -72.990381), App.Rotation(V(-1, 0, 0), V(0, 0.866025404, 0.5), V(0, 0.5, -0.866025404), "ZXY"))
add_polygon(sketch30, [(0, -14), (0, -34), (300, -34), (300, -14)])
sketch30.addConstraint(Sketcher.Constraint("Vertical", 0))
sketch30.addConstraint(Sketcher.Constraint("Horizontal", 1))
sketch30.addConstraint(Sketcher.Constraint("Vertical", 2))
sketch30.addConstraint(Sketcher.Constraint("Horizontal", 3))
sketch30.addConstraint(Sketcher.Constraint("PointOnObject", 0, 2, -2))
sketch30.addConstraint(Sketcher.Constraint("DistanceX", 1, 1, 1, 2, 300.0))
sketch30.addConstraint(Sketcher.Constraint("DistanceY", 0, 2, 0, 1, 20.0))
sketch30.addConstraint(Sketcher.Constraint("DistanceY", 0, 2, -1, 1, 34.019238))
pad16 = body4.newObject("PartDesign::Pad", "Pad015")
pad16.Profile = sketch30
pad16.Length = 50

sketch31 = body4.newObject("Sketcher::SketchObject", "Sketch030")
sketch31.Placement = App.Placement(V(0, 67.141016, -116.291651), App.Rotation(V(-1, 0, 0), V(0, 0.866025404, 0.5), V(0, 0.5, -0.866025404), "ZXY"))
add_polygon(sketch31, [(0, -14), (0, -34), (300, -34), (300, -14)])
sketch31.addGeometry(Part.LineSegment(V(300, -14, 0), V(0, -14, 0)), True)
sketch31.addConstraint(Sketcher.Constraint("Vertical", 0))
sketch31.addConstraint(Sketcher.Constraint("Horizontal", 1))
sketch31.addConstraint(Sketcher.Constraint("Vertical", 2))
sketch31.addConstraint(Sketcher.Constraint("Horizontal", 3))
sketch31.addConstraint(Sketcher.Constraint("Horizontal", 4))
sketch31.addConstraint(Sketcher.Constraint("Coincident", 4, 1, 2, 2))
sketch31.addConstraint(Sketcher.Constraint("PointOnObject", 0, 2, -2))
sketch31.addConstraint(Sketcher.Constraint("PointOnObject", 4, 2, -2))
sketch31.addConstraint(Sketcher.Constraint("DistanceX", 1, 1, 1, 2, 300.0))
sketch31.addConstraint(Sketcher.Constraint("DistanceY", 0, 2, 0, 1, 20.0))
sketch31.addConstraint(Sketcher.Constraint("DistanceY", 0, 2, -1, 1, 34.019238))
revolution2 = body4.newObject("PartDesign::Revolution", "Revolution001")
revolution2.Profile = sketch31
revolution2.ReferenceAxis = (sketch31, ["Axis0"])
revolution2.Angle = 60
doc.recompute()

boolean3 = body5.newObject("PartDesign::Boolean", "Boolean002")
boolean3.Type = "Fuse"
boolean3.addObjects([body6])
doc.recompute()

boolean4 = body5.newObject("PartDesign::Boolean", "Boolean003")
boolean4.Type = "Fuse"
boolean4.addObjects([body7])

sketch32 = body5.newObject("Sketcher::SketchObject", "Sketch031")
sketch32.AttachmentSupport = (doc.getObject("XY_Plane004"), [""])
sketch32.MapMode = "FlatFace"
sketch32.AttachmentOffset = App.Placement(V(0, 0, -80), App.Rotation())
add_polygon(sketch32, [(0, 320), (0, 300), (-300, 300), (-300, 320)])
sketch32.addGeometry(Part.LineSegment(V(0, 300, 0), V(-300, 300, 0)), True)
sketch32.addConstraint(Sketcher.Constraint("Vertical", 0))
sketch32.addConstraint(Sketcher.Constraint("Horizontal", 1))
sketch32.addConstraint(Sketcher.Constraint("Vertical", 2))
sketch32.addConstraint(Sketcher.Constraint("Horizontal", 3))
sketch32.addConstraint(Sketcher.Constraint("Horizontal", 4))
sketch32.addConstraint(Sketcher.Constraint("Coincident", 4, 1, 0, 2))
sketch32.addConstraint(Sketcher.Constraint("PointOnObject", 0, 2, -2))
sketch32.addConstraint(Sketcher.Constraint("Vertical", 2, 2, 4, 2))
sketch32.addConstraint(Sketcher.Constraint("DistanceX", 1, 2, 1, 1, 300.0))
sketch32.addConstraint(Sketcher.Constraint("DistanceY", 0, 2, 0, 1, 20.0))
sketch32.addConstraint(Sketcher.Constraint("DistanceY", -1, 1, 0, 2, 300.0))
revolution3 = body5.newObject("PartDesign::Revolution", "Revolution002")
revolution3.Profile = sketch32
revolution3.ReferenceAxis = (sketch32, ["Axis0"])
revolution3.Angle = 30

sketch33 = body5.newObject("Sketcher::SketchObject", "Sketch032")
sketch33.Placement = App.Placement(V(0, 40.358984, 69.903811), App.Rotation(V(-1, 0, 0), V(0, 0.866025404, -0.5), V(0, -0.5, -0.866025404), "ZXY"))
add_polygon(sketch33, [(0, 320), (0, 300), (300, 300), (300, 320)])
sketch33.addConstraint(Sketcher.Constraint("Vertical", 0))
sketch33.addConstraint(Sketcher.Constraint("Horizontal", 1))
sketch33.addConstraint(Sketcher.Constraint("Vertical", 2))
sketch33.addConstraint(Sketcher.Constraint("Horizontal", 3))
sketch33.addConstraint(Sketcher.Constraint("PointOnObject", 0, 2, -2))
sketch33.addConstraint(Sketcher.Constraint("DistanceX", 1, 1, 1, 2, 300.0))
sketch33.addConstraint(Sketcher.Constraint("DistanceY", 0, 2, 0, 1, 20.0))
sketch33.addConstraint(Sketcher.Constraint("DistanceY", -1, 1, 0, 2, 299.807621))
pad17 = body5.newObject("PartDesign::Pad", "Pad016")
pad17.Profile = sketch33
pad17.Length = 50

sketch34 = body5.newObject("Sketcher::SketchObject", "Sketch033")
sketch34.Placement = App.Placement(V(0, 15.358984, 26.60254), App.Rotation(V(-1, 0, 0), V(0, 0.866025404, -0.5), V(0, -0.5, -0.866025404), "ZXY"))
add_polygon(sketch34, [(0, 320), (0, 300), (300, 300), (300, 320)])
sketch34.addGeometry(Part.LineSegment(V(0, 300, 0), V(300, 300, 0)), True)
sketch34.addConstraint(Sketcher.Constraint("Vertical", 0))
sketch34.addConstraint(Sketcher.Constraint("Horizontal", 1))
sketch34.addConstraint(Sketcher.Constraint("Vertical", 2))
sketch34.addConstraint(Sketcher.Constraint("Horizontal", 3))
sketch34.addConstraint(Sketcher.Constraint("Horizontal", 4))
sketch34.addConstraint(Sketcher.Constraint("Coincident", 4, 1, 0, 2))
sketch34.addConstraint(Sketcher.Constraint("PointOnObject", 0, 2, -2))
sketch34.addConstraint(Sketcher.Constraint("Vertical", 2, 2, 4, 2))
sketch34.addConstraint(Sketcher.Constraint("DistanceX", 1, 1, 1, 2, 300.0))
sketch34.addConstraint(Sketcher.Constraint("DistanceY", 0, 2, 0, 1, 20.0))
sketch34.addConstraint(Sketcher.Constraint("DistanceY", -1, 1, 0, 2, 299.807621))
revolution4 = body5.newObject("PartDesign::Revolution", "Revolution003")
revolution4.Profile = sketch34
revolution4.ReferenceAxis = (sketch34, ["Axis0"])
revolution4.Angle = 60
body4.AllowCompound = True
doc.recompute()

boolean5 = body4.newObject("PartDesign::Boolean", "Boolean004")
boolean5.Type = "Fuse"
boolean5.addObjects([body5])

sketch35 = body4.newObject("Sketcher::SketchObject", "Sketch034")
sketch35.AttachmentSupport = (doc.getObject("XZ_Plane003"), [""])
sketch35.MapMode = "FlatFace"
sketch35.AttachmentOffset = App.Placement(V(0, 0, -55), App.Rotation())
add_polygon(sketch35, [(-300, -143), (-300, -123), (0, -123), (0, -143)])
sketch35.addConstraint(Sketcher.Constraint("Vertical", 0))
sketch35.addConstraint(Sketcher.Constraint("Horizontal", 1))
sketch35.addConstraint(Sketcher.Constraint("Vertical", 2))
sketch35.addConstraint(Sketcher.Constraint("Horizontal", 3))
sketch35.addConstraint(Sketcher.Constraint("PointOnObject", 1, 2, -2))
sketch35.addConstraint(Sketcher.Constraint("DistanceX", 1, 1, 1, 2, 300.0))
sketch35.addConstraint(Sketcher.Constraint("DistanceY", 0, 1, 0, 2, 20.0))
sketch35.addConstraint(Sketcher.Constraint("DistanceY", 0, 2, -1, 1, 123.30127))
pad18 = body4.newObject("PartDesign::Pad", "Pad017")
pad18.Profile = sketch35
pad18.Length = 220
pad18.Reversed = True

sketch36 = body4.newObject("Sketcher::SketchObject", "Sketch035")
sketch36.AttachmentSupport = (doc.getObject("XY_Plane003"), [""])
sketch36.MapMode = "FlatFace"
sketch36.AttachmentOffset = App.Placement(V(0, 0, -143.30127), App.Rotation())
add_polygon(sketch36, [(-105, 180), (-105, 150), (-235, 150), (-235, 180)])
sketch36.addConstraint(Sketcher.Constraint("Vertical", 0))
sketch36.addConstraint(Sketcher.Constraint("Horizontal", 1))
sketch36.addConstraint(Sketcher.Constraint("Vertical", 2))
sketch36.addConstraint(Sketcher.Constraint("Horizontal", 3))
sketch36.addConstraint(Sketcher.Constraint("DistanceX", 1, 2, 1, 1, 130.0))
sketch36.addConstraint(Sketcher.Constraint("DistanceY", 0, 2, 0, 1, 30.0))
sketch36.addConstraint(Sketcher.Constraint("DistanceX", 0, 2, -1, 1, 105.0))
sketch36.addConstraint(Sketcher.Constraint("DistanceY", -1, 1, 0, 2, 150.0))
pad19 = body4.newObject("PartDesign::Pad", "Pad018")
pad19.Profile = sketch36
pad19.Length = 1
pad19.Reversed = True

doc.recompute()
